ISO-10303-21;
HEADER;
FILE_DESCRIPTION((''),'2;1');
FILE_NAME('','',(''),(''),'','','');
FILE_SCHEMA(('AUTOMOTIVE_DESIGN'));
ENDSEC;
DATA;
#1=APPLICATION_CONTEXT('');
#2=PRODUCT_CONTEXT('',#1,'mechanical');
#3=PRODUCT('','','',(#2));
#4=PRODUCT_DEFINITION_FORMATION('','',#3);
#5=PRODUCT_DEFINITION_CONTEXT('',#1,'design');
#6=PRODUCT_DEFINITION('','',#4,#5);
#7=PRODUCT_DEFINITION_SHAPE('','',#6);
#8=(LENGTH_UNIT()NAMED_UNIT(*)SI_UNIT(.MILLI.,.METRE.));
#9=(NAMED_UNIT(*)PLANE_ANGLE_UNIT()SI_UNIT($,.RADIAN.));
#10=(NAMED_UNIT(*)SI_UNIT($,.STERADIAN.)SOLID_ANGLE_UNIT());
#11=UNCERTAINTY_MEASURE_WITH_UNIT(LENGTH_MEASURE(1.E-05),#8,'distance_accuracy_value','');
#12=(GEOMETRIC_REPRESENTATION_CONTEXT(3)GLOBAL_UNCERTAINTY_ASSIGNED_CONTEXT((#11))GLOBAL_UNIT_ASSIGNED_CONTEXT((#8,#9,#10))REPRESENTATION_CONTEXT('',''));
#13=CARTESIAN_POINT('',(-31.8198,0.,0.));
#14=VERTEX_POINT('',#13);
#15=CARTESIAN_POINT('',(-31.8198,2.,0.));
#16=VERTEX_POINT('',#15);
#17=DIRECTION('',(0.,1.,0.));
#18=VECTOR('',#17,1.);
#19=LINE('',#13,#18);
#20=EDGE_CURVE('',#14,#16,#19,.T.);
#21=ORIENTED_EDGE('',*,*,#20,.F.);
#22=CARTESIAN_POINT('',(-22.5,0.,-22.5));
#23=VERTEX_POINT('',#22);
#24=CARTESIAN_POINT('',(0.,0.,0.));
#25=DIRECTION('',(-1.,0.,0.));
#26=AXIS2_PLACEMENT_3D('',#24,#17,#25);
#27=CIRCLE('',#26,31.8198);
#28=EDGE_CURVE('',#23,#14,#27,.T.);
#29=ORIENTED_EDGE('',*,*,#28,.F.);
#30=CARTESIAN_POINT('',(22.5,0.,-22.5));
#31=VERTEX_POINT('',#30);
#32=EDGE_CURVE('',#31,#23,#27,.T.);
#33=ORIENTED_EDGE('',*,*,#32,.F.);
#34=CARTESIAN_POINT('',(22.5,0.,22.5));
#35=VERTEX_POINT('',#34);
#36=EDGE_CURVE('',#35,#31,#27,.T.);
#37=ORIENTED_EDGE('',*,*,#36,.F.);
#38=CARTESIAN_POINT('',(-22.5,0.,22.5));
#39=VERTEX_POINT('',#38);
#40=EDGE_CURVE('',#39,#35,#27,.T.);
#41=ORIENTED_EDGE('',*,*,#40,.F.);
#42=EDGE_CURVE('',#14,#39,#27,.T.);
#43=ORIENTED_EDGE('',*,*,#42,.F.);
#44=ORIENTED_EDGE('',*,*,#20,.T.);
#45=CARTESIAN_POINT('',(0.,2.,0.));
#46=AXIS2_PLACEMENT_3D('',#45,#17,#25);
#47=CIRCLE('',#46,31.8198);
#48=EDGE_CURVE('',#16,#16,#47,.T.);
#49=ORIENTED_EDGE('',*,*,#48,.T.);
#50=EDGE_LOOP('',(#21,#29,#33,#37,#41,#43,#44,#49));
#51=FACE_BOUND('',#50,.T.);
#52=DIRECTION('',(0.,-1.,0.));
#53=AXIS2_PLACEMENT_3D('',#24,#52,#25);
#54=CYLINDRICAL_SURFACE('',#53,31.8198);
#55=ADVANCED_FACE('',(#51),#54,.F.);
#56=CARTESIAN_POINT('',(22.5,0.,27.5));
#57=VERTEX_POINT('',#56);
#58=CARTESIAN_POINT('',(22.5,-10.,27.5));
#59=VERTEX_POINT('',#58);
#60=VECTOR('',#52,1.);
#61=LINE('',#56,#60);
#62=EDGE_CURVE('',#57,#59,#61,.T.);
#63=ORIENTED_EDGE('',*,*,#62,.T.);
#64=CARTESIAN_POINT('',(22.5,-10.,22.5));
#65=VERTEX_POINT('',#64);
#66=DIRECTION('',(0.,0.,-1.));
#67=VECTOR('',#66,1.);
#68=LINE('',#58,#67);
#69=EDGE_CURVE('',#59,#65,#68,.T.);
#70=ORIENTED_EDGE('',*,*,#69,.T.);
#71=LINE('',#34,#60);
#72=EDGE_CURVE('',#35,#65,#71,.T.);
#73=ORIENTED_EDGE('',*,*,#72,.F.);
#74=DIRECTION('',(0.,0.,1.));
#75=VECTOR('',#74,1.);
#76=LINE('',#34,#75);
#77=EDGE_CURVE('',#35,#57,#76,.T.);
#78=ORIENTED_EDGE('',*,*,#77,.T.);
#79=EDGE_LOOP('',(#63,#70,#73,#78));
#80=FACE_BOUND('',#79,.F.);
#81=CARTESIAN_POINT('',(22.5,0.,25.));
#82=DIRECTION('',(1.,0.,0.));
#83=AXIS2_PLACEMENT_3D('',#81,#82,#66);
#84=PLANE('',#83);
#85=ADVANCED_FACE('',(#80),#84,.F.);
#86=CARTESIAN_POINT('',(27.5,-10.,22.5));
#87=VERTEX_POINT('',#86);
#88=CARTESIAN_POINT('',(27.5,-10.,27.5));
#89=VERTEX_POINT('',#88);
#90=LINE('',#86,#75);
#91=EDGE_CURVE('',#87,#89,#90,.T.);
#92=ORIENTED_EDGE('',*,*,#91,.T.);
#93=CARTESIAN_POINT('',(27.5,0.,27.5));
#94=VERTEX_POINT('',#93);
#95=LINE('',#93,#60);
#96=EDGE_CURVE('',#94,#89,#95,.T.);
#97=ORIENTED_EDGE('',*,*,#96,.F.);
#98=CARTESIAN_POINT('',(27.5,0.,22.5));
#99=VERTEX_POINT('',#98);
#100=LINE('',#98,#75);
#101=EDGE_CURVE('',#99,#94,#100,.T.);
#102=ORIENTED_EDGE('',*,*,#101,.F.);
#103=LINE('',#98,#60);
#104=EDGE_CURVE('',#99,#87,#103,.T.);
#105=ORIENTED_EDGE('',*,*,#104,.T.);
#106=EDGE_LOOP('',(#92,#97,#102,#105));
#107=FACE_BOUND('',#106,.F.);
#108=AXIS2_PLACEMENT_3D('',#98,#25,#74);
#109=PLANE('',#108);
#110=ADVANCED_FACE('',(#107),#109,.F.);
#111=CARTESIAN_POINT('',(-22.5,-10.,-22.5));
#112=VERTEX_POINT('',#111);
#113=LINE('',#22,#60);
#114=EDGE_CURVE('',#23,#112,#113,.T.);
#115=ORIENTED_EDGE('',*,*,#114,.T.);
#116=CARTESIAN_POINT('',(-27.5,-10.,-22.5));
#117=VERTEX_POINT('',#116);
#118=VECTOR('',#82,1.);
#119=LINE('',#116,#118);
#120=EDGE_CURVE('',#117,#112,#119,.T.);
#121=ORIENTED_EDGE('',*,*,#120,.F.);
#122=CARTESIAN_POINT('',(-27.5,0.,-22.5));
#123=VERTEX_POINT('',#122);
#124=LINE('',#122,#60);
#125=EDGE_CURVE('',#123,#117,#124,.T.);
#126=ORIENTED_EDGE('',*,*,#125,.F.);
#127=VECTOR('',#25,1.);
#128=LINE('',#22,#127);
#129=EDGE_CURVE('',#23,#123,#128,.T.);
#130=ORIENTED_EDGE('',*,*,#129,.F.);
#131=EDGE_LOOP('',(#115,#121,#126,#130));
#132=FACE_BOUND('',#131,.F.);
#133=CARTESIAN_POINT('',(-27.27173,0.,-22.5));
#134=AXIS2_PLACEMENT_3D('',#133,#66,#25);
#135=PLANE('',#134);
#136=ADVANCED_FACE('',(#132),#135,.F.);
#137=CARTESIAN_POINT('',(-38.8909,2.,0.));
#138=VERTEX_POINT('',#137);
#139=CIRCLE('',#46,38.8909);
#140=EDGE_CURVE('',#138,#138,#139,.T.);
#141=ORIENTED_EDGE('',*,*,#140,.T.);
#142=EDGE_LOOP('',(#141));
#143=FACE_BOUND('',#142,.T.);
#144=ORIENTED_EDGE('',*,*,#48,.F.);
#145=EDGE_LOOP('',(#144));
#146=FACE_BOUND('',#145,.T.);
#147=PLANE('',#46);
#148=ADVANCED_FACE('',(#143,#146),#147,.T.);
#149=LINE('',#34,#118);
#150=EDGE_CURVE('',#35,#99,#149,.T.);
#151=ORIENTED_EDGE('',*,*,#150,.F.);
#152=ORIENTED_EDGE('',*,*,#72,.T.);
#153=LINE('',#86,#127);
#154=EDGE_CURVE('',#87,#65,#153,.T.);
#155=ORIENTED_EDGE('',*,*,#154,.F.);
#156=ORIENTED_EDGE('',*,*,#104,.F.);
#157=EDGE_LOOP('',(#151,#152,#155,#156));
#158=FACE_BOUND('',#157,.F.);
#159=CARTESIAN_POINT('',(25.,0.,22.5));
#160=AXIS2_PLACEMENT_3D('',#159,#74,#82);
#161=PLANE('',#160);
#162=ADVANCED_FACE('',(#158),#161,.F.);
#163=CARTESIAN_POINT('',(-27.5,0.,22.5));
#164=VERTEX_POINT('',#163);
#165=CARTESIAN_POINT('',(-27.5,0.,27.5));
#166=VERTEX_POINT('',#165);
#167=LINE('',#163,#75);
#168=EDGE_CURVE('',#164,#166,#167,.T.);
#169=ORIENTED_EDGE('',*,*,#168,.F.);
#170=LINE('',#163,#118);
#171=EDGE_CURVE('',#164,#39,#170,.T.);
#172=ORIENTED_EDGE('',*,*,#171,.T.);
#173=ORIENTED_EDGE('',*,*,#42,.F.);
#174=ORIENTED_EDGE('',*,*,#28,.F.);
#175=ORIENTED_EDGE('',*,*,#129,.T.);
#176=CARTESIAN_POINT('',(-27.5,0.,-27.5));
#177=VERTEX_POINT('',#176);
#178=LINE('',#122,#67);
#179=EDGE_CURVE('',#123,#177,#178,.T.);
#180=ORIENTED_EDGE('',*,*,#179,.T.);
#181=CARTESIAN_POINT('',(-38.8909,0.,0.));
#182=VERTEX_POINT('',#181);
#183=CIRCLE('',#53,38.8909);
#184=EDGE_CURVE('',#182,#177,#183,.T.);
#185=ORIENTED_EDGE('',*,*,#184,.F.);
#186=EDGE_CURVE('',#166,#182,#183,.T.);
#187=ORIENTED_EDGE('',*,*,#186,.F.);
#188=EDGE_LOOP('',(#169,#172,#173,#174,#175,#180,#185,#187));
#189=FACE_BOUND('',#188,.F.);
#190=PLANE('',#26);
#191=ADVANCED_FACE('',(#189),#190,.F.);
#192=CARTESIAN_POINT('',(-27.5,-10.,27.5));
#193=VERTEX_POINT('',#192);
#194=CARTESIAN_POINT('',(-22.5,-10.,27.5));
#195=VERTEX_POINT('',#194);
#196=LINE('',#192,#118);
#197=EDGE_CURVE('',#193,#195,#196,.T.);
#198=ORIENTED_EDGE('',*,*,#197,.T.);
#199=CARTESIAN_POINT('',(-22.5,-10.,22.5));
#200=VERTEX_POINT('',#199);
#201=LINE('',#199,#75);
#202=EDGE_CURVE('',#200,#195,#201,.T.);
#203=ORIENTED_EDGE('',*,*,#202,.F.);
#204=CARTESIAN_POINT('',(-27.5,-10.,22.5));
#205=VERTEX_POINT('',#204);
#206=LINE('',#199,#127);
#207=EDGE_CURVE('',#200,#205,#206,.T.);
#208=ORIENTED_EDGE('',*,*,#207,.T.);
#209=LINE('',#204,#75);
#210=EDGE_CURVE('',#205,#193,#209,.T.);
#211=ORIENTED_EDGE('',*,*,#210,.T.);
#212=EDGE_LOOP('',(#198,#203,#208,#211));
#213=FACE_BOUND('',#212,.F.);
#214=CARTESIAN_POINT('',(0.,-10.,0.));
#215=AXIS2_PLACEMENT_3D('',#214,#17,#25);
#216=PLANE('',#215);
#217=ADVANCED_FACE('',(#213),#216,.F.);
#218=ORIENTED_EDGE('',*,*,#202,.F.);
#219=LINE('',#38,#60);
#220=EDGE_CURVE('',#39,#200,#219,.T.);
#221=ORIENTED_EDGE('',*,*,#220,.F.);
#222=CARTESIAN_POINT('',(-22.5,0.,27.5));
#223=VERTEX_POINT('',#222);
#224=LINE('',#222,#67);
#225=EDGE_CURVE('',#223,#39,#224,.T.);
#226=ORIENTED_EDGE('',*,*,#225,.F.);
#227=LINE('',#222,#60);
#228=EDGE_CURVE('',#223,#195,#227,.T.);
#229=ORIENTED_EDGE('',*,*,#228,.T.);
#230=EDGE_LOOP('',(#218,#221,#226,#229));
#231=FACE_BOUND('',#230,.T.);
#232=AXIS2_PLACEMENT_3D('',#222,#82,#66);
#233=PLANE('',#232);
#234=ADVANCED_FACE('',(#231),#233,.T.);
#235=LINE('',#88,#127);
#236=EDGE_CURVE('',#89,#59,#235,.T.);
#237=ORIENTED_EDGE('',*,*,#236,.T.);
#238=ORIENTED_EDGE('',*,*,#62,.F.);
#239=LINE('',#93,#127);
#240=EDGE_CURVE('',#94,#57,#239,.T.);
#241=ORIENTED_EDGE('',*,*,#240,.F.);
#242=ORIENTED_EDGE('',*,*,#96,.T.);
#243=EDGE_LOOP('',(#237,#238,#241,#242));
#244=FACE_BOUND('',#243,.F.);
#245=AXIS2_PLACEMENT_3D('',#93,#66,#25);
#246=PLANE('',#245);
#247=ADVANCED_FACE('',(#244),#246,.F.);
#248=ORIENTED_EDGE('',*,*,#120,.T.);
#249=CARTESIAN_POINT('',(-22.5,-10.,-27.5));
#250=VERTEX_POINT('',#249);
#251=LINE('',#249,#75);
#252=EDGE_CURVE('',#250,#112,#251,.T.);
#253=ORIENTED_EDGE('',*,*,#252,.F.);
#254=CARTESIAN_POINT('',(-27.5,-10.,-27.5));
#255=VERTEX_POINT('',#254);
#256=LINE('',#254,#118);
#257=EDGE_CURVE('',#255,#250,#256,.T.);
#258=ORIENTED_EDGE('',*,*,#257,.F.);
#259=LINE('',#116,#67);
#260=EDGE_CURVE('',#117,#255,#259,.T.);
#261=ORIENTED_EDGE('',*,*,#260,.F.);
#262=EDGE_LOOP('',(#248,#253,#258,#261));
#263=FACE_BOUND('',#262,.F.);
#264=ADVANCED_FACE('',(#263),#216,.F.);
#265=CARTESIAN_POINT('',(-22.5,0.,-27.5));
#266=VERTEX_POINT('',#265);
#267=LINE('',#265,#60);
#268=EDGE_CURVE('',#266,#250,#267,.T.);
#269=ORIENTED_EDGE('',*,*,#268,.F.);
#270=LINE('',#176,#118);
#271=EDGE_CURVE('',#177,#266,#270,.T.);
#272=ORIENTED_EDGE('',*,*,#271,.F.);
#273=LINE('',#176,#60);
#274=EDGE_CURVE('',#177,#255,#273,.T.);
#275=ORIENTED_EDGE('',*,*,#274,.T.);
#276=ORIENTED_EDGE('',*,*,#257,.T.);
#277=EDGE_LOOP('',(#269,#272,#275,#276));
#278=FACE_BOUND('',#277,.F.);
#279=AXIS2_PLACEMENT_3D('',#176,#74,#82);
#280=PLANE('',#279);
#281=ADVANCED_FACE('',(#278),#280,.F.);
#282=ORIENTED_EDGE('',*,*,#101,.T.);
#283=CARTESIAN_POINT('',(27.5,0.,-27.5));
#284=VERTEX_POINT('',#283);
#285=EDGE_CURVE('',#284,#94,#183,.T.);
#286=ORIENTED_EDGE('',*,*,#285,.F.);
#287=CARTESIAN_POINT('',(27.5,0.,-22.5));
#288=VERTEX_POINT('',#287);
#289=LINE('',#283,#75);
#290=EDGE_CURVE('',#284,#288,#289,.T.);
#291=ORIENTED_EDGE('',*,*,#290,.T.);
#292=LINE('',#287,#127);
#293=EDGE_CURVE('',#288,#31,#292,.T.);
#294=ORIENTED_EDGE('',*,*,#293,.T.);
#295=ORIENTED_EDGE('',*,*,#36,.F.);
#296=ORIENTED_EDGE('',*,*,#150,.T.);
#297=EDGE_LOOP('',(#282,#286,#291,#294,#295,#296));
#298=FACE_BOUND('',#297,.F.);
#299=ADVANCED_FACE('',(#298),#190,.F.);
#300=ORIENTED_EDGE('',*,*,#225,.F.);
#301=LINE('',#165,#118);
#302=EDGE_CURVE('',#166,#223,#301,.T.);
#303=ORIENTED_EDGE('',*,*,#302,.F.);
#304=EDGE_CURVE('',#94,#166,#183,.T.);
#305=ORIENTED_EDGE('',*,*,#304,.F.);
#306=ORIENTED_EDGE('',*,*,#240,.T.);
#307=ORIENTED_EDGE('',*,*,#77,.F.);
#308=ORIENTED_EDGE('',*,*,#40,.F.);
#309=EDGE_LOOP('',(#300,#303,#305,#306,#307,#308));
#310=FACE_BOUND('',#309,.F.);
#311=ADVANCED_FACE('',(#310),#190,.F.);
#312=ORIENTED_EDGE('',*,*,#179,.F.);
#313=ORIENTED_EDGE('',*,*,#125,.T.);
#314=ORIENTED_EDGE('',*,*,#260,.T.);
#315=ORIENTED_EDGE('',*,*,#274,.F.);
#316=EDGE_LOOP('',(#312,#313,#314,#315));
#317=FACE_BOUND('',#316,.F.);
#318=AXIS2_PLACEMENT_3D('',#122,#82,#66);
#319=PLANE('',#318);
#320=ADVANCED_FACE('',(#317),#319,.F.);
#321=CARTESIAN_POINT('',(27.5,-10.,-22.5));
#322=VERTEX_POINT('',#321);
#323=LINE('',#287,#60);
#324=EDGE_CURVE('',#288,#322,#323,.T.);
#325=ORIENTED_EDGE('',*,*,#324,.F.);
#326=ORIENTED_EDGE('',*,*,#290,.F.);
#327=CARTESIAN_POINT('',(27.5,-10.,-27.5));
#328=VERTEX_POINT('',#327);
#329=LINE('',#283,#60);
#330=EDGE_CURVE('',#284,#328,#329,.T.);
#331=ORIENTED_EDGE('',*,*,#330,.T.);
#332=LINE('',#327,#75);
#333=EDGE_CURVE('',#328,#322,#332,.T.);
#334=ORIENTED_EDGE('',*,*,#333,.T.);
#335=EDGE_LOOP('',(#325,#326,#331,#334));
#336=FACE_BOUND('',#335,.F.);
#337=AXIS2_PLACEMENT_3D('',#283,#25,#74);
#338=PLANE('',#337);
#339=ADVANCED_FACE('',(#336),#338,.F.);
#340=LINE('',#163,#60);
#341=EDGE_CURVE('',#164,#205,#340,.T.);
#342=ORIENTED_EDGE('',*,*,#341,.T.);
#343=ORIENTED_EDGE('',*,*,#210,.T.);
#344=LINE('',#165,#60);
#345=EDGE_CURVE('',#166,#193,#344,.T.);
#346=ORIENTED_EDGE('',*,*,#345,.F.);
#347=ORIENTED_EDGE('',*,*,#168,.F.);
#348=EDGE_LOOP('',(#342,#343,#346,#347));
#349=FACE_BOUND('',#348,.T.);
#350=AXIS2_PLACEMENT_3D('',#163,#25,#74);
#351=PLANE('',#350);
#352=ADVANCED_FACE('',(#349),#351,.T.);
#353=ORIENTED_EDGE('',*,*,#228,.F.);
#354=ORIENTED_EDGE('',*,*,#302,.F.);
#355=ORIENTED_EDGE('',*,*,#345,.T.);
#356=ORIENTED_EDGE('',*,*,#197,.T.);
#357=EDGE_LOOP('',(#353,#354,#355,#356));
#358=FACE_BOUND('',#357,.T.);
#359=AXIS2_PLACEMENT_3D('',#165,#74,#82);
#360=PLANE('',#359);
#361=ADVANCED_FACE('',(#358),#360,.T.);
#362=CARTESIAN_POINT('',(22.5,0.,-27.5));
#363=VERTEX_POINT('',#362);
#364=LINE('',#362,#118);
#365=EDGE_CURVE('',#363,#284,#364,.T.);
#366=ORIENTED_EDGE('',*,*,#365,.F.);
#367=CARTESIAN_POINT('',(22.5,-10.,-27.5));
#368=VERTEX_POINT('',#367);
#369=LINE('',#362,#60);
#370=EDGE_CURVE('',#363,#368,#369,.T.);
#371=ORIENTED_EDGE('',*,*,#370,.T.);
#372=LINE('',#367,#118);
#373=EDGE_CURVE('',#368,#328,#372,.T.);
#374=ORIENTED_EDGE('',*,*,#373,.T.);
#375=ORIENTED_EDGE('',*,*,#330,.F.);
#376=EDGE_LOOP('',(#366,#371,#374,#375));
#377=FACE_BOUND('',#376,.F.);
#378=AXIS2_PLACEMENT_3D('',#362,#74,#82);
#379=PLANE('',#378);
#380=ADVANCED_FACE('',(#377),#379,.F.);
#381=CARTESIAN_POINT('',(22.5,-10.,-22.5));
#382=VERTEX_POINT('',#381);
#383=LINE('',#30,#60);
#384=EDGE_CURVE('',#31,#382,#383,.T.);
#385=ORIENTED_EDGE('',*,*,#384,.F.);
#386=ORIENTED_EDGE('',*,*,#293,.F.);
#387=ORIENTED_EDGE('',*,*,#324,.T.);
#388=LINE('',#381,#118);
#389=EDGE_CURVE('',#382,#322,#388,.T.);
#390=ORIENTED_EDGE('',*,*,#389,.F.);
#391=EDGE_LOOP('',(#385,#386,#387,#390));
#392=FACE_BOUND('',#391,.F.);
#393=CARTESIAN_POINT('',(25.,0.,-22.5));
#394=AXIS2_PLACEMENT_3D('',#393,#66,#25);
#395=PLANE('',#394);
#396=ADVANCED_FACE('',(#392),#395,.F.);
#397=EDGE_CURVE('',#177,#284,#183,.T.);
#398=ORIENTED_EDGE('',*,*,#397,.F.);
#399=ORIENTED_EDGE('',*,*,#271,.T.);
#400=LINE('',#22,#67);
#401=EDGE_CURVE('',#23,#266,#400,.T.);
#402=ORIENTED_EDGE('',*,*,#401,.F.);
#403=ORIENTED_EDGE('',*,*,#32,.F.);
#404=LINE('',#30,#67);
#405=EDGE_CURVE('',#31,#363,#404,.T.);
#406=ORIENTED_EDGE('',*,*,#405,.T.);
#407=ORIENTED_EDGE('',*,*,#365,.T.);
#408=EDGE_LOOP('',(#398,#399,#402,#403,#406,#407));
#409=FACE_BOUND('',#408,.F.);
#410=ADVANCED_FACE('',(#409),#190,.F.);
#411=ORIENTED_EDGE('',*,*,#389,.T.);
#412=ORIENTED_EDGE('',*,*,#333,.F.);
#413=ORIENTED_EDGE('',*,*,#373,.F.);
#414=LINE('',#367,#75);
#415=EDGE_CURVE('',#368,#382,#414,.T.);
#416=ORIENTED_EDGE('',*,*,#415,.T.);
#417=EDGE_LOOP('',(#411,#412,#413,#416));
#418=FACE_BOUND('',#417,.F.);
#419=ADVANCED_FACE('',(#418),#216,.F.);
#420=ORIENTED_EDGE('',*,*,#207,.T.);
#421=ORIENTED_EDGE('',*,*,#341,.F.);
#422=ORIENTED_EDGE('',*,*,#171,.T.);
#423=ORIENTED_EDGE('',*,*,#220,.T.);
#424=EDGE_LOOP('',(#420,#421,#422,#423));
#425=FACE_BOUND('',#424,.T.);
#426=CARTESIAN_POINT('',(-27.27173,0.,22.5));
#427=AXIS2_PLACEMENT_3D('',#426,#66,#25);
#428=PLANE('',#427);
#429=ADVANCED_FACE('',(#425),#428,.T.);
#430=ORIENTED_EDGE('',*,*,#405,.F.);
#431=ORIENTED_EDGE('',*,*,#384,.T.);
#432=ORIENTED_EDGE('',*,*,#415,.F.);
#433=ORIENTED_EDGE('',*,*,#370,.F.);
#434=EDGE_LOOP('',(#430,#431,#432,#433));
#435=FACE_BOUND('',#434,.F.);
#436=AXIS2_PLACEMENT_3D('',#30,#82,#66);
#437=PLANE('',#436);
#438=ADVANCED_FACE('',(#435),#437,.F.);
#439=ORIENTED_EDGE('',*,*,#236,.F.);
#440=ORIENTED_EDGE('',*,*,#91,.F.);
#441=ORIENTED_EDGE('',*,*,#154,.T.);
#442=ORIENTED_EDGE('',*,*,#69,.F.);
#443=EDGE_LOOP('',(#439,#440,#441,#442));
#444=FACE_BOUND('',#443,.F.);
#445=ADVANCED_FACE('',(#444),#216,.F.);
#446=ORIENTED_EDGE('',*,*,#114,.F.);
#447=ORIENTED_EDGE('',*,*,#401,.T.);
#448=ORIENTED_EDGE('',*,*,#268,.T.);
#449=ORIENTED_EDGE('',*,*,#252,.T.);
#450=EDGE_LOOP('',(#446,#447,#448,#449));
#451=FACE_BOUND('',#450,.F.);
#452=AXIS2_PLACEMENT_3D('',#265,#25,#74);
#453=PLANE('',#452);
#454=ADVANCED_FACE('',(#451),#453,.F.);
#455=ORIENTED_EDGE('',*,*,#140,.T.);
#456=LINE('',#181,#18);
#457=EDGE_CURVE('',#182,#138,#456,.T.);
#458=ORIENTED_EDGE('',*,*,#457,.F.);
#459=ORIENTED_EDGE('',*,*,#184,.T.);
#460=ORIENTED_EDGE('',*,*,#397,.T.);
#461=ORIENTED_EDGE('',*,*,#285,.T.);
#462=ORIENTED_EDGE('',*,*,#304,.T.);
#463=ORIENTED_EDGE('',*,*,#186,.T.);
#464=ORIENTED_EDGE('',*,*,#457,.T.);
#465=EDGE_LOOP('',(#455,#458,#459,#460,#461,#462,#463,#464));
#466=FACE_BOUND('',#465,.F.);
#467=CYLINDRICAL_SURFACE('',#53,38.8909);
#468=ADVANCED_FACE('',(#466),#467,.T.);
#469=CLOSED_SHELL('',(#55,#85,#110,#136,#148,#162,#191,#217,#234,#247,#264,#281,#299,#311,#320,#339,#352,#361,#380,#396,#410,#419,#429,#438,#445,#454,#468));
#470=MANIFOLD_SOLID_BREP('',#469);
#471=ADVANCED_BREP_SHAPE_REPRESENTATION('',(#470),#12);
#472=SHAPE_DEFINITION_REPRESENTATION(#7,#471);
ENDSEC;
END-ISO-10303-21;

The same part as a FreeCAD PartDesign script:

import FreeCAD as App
import Part
import Sketcher

V = App.Vector


def add_polygon(sketch, points):
    """Adds a closed chain of lines whose ends are joined by coincident constraints."""
    first, n = sketch.GeometryCount, len(points)
    for a, b in zip(points, points[1:] + points[:1]):
        sketch.addGeometry(Part.LineSegment(App.Vector(*a, 0), App.Vector(*b, 0)), False)
    for i in range(n):
        sketch.addConstraint(Sketcher.Constraint("Coincident", first + i, 2, first + (i + 1) % n, 1))

doc = App.newDocument("Part")
body = doc.addObject("PartDesign::Body", "Body")

# Sketch on XZ plane
sketch1 = body.newObject("Sketcher::SketchObject", "Sketch")
sketch1.AttachmentSupport = (doc.getObject("XZ_Plane"), [""])
sketch1.MapMode = "FlatFace"
sketch1.addGeometry(Part.Circle(V(0, 0, 0), V(0, 0, 1), 38.8909), False)
sketch1.addGeometry(Part.Circle(V(0, 0, 0), V(0, 0, 1), 31.8198), False)
sketch1.addConstraint(Sketcher.Constraint("Coincident", 0, 3, -1, 1))
sketch1.addConstraint(Sketcher.Constraint("Coincident", 1, 3, -1, 1))
sketch1.addConstraint(Sketcher.Constraint("Diameter", 1, 63.6396))
sketch1.addConstraint(Sketcher.Constraint("Diameter", 0, 77.7818))
pad1 = body.newObject("PartDesign::Pad", "Pad")
pad1.Profile = sketch1
pad1.Length = 2
pad1.Reversed = True

# Sketch on XZ plane
sketch2 = body.newObject("Sketcher::SketchObject", "Sketch001")
sketch2.AttachmentSupport = (doc.getObject("XZ_Plane"), [""])
sketch2.MapMode = "FlatFace"
add_polygon(sketch2, [(22.5, -22.5), (27.5, -22.5), (27.5, -27.5), (22.5, -27.5)])  # lines 0-3
add_polygon(sketch2, [(22.5, 22.5), (22.5, 27.5), (27.5, 27.5), (27.5, 22.5)])  # lines 4-7
add_polygon(sketch2, [(-27.5, -22.5), (-22.5, -22.5), (-22.5, -27.5), (-27.5, -27.5)])  # lines 8-11
add_polygon(sketch2, [(-27.5, 22.5), (-27.5, 27.5), (-22.5, 27.5), (-22.5, 22.5)])  # lines 12-15
sketch2.addConstraint(Sketcher.Constraint("Horizontal", 0))
sketch2.addConstraint(Sketcher.Constraint("Vertical", 1))
sketch2.addConstraint(Sketcher.Constraint("Horizontal", 2))
sketch2.addConstraint(Sketcher.Constraint("Vertical", 3))
sketch2.addConstraint(Sketcher.Constraint("Vertical", 4))
sketch2.addConstraint(Sketcher.Constraint("Horizontal", 5))
sketch2.addConstraint(Sketcher.Constraint("Vertical", 6))
sketch2.addConstraint(Sketcher.Constraint("Horizontal", 7))
sketch2.addConstraint(Sketcher.Constraint("Horizontal", 8))
sketch2.addConstraint(Sketcher.Constraint("Vertical", 9))
sketch2.addConstraint(Sketcher.Constraint("Horizontal", 10))
sketch2.addConstraint(Sketcher.Constraint("Vertical", 11))
sketch2.addConstraint(Sketcher.Constraint("Vertical", 12))
sketch2.addConstraint(Sketcher.Constraint("Horizontal", 13))
sketch2.addConstraint(Sketcher.Constraint("Vertical", 14))
sketch2.addConstraint(Sketcher.Constraint("Horizontal", 15))
sketch2.addConstraint(Sketcher.Constraint("Symmetric", 7, 2, 8, 2, -1, 1))
sketch2.addConstraint(Sketcher.Constraint("Symmetric", 5, 2, 10, 2, -1, 1))
sketch2.addConstraint(Sketcher.Constraint("Symmetric", 1, 2, 12, 2, -1, 1))
sketch2.addConstraint(Sketcher.Constraint("Symmetric", 3, 2, 14, 2, -1, 1))
sketch2.addConstraint(Sketcher.Constraint("Symmetric", 3, 2, 8, 2, -2))
sketch2.addConstraint(Sketcher.Constraint("Symmetric", 1, 2, 10, 2, -2))
sketch2.addConstraint(Sketcher.Constraint("Equal", 15, 1))
sketch2.addConstraint(Sketcher.Constraint("DistanceX", 0, 1, 0, 2, 5.0))
sketch2.addConstraint(Sketcher.Constraint("DistanceY", 3, 2, 4, 2, 50.0))
sketch2.addConstraint(Sketcher.Constraint("DistanceX", 8, 2, 0, 2, 50.0))
pad2 = body.newObject("PartDesign::Pad", "Pad001")
pad2.Profile = sketch2
pad2.Length = 10

doc.recompute()
